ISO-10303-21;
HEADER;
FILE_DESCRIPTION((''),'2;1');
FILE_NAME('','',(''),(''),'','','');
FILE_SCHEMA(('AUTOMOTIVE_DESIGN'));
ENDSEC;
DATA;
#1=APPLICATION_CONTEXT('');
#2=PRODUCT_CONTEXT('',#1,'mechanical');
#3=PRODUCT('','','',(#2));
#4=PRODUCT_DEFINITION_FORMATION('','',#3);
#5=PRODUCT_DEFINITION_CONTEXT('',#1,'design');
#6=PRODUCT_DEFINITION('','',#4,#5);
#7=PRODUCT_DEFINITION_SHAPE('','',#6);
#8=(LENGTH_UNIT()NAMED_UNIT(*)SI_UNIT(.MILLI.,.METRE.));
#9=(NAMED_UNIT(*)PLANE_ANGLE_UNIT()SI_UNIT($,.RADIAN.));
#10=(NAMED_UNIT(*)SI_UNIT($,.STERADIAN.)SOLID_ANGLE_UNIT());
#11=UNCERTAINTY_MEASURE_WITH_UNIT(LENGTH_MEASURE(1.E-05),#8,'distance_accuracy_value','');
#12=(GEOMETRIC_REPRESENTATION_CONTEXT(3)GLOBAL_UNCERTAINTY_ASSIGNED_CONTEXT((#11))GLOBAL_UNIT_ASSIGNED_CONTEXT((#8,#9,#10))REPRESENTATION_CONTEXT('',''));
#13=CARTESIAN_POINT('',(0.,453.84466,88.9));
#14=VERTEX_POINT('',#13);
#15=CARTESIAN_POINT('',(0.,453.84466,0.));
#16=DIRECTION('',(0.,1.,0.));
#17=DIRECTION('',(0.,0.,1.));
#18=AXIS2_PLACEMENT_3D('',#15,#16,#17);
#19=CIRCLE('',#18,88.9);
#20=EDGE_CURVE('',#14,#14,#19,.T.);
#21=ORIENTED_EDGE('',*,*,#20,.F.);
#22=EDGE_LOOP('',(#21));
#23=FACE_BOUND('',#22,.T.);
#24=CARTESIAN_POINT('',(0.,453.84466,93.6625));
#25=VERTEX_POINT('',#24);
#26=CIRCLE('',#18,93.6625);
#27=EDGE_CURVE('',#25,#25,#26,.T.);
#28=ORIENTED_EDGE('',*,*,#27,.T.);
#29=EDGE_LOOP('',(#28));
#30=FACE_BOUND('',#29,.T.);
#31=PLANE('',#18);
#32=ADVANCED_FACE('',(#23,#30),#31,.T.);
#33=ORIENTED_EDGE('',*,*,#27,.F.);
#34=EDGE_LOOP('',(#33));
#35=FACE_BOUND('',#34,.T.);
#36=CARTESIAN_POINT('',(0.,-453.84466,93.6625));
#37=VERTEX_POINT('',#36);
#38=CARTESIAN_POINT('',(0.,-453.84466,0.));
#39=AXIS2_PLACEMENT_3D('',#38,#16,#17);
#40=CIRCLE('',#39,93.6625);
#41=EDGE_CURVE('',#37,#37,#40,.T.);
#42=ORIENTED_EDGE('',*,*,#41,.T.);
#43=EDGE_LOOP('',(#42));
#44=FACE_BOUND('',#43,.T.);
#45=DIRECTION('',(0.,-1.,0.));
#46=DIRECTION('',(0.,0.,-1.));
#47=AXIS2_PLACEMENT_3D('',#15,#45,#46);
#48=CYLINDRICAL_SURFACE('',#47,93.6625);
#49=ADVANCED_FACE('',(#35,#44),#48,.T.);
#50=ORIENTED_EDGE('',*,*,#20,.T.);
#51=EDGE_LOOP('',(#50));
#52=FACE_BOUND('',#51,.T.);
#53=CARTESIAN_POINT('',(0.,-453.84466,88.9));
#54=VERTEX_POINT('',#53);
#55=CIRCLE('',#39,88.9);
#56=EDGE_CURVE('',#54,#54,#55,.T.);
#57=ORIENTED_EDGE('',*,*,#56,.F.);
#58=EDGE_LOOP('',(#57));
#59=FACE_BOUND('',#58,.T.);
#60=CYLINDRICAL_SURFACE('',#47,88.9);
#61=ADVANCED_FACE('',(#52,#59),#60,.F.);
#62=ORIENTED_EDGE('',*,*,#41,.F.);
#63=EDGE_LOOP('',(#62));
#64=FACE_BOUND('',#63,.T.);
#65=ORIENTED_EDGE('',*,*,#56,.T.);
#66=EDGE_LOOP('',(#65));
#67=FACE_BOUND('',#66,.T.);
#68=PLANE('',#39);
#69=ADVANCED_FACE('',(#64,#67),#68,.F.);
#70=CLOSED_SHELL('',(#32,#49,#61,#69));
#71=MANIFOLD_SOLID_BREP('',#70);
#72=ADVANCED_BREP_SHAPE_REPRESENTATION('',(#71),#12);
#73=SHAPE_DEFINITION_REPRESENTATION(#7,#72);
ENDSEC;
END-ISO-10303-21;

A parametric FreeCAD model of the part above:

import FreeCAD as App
import Part
import Sketcher

V = App.Vector
Q = App.Units.Quantity

doc = App.newDocument("Part")
body = doc.addObject("PartDesign::Body", "Body")

sketch1 = body.newObject("Sketcher::SketchObject", "Sketch")
sketch1.AttachmentSupport = (doc.getObject("XZ_Plane"), [""])
sketch1.MapMode = "FlatFace"
sketch1.addGeometry(Part.Circle(V(0, 0, 0), V(0, 0, 1), 94), False)
sketch1.addGeometry(Part.Circle(V(0, 0, 0), V(0, 0, 1), 89), False)
sketch1.addConstraint(Sketcher.Constraint("Coincident", 0, 3, -1, 1))
sketch1.addConstraint(Sketcher.Constraint("Coincident", 1, 3, -1, 1))
sketch1.addConstraint(Sketcher.Constraint("Diameter", 1, Q("7 in")))
sketch1.addConstraint(Sketcher.Constraint("Diameter", 0, Q("7.375 in")))
pad1 = body.newObject("PartDesign::Pad", "Pad")
pad1.Profile = sketch1
pad1.Length = Q("35.7358 in")
pad1.Midplane = True

doc.recompute()
